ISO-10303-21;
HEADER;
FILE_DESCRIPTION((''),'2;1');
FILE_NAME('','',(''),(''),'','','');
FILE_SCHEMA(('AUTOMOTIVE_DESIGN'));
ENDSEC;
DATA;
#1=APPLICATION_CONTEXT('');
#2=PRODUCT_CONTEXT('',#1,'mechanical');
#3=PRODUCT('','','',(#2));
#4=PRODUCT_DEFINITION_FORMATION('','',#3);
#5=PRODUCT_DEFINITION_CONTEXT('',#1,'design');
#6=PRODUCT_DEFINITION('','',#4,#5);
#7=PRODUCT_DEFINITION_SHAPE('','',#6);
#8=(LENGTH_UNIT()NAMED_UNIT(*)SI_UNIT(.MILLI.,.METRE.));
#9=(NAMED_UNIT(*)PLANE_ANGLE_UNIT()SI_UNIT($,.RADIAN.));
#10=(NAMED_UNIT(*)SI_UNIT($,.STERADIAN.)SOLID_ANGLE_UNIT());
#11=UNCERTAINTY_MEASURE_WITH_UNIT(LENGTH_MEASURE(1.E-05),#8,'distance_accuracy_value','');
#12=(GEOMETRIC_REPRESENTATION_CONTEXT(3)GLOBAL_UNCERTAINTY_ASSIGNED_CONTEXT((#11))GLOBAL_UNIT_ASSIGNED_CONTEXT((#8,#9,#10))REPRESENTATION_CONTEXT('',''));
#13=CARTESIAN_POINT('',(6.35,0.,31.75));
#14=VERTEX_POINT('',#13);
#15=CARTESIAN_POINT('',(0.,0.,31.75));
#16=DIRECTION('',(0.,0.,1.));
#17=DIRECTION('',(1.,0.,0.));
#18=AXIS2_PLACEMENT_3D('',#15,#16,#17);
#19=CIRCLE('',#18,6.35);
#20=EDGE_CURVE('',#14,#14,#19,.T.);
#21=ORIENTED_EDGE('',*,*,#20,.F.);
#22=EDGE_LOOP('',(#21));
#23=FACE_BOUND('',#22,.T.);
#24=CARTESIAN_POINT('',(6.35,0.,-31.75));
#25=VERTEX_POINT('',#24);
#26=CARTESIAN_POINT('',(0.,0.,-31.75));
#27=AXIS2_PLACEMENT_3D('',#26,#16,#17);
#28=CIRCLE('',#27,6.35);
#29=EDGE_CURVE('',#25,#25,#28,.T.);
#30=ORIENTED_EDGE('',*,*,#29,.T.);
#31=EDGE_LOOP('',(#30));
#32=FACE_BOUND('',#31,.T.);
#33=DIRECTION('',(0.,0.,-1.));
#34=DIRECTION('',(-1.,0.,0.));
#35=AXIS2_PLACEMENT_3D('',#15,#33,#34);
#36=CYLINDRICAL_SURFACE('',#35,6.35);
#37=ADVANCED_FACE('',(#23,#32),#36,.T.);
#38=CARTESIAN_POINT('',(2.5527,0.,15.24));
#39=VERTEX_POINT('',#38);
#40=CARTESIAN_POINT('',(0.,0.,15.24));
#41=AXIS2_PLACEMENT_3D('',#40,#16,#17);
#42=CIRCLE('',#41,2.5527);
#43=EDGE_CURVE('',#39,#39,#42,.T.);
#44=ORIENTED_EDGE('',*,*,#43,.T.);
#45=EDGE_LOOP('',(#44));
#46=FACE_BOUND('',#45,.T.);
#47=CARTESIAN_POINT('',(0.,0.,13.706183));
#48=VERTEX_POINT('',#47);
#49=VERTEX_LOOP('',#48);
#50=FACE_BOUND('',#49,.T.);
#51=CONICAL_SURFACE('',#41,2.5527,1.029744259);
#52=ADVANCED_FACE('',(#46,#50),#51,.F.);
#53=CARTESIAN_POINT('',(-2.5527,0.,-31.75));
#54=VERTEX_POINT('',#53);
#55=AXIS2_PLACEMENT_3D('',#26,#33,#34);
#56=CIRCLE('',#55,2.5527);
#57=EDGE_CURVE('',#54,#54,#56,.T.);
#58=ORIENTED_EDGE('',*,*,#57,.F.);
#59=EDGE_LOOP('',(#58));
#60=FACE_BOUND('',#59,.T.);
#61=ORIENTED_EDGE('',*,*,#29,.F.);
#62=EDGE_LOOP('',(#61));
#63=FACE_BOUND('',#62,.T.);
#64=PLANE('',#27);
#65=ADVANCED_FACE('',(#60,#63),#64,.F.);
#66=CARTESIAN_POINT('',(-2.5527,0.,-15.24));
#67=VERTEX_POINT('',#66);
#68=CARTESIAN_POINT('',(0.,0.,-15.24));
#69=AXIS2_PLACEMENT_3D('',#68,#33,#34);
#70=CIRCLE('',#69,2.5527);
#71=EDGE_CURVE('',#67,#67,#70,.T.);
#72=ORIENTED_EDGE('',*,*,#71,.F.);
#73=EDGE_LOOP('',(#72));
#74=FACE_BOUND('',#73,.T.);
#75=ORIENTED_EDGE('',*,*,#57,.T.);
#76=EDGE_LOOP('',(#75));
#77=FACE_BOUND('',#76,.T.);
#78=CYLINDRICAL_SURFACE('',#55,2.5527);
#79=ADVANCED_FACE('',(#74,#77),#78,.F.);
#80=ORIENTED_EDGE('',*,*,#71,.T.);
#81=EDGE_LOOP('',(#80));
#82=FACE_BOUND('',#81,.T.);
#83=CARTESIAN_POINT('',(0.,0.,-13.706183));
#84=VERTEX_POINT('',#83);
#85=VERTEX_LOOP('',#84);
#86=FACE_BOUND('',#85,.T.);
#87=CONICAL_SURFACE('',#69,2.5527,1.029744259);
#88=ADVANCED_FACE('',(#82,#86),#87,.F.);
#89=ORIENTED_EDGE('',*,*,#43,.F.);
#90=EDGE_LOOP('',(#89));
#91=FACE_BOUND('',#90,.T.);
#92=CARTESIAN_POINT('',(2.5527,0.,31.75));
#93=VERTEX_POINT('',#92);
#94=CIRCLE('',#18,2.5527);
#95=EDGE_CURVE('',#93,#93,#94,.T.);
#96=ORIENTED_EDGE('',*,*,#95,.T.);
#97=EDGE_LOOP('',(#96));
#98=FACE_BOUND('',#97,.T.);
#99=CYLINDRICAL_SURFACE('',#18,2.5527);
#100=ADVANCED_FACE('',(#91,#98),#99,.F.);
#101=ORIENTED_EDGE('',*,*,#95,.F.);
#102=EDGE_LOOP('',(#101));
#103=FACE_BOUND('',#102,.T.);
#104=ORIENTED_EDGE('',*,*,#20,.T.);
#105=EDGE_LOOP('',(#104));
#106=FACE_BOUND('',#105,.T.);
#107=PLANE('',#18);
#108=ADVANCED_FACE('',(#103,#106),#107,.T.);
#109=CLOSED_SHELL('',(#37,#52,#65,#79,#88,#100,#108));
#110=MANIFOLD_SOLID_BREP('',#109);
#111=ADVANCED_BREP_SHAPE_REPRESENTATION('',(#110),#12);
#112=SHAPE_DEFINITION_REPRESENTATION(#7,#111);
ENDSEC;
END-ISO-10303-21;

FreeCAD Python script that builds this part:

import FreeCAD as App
import Part
import Sketcher
from FreeCAD import Vector
Q = App.Units.Quantity

doc = App.newDocument("Part")
body = doc.addObject("PartDesign::Body", "Body")

# Sketch on XY plane
sketch1 = body.newObject("Sketcher::SketchObject", "Sketch")
sketch1.AttachmentSupport = (doc.getObject("XY_Plane"), [""])
sketch1.MapMode = "FlatFace"
sketch1.addGeometry(Part.Circle(Vector(0, 0, 0), Vector(0, 0, 1), 6), False)
sketch1.addConstraint([
    Sketcher.Constraint("Coincident", 0, 3, -1, 1),
    Sketcher.Constraint("Diameter", 0, Q("0.5 in")),
])
pad1 = body.newObject("PartDesign::Pad", "Pad")
pad1.Profile = sketch1
pad1.Length = Q("2.5 in")
pad1.Midplane = True

# Sketch on XY plane
sketch2 = body.newObject("Sketcher::SketchObject", "Sketch001")
sketch2.AttachmentSupport = (doc.getObject("XY_Plane"), [""])
sketch2.MapMode = "FlatFace"
sketch2.AttachmentOffset = App.Placement(Vector(0, 0, 1.25 * 25.4), App.Rotation())
sketch2.addGeometry(Part.Circle(Vector(0, 0, 0), Vector(0, 0, 1), 2.6), False)
sketch2.addConstraint([
    Sketcher.Constraint("Coincident", 0, 3, -1, 1),
    Sketcher.Constraint("Diameter", 0, Q("0.201 in")),
])
doc.recompute()
hole = body.newObject("PartDesign::Hole", "Hole")
hole.Profile = sketch2
hole.ThreadType = "None"
hole.Diameter = Q("0.201 in")
hole.DepthType = "Dimension"
hole.Depth = Q("0.65 in")
hole.DrillPoint = "Angled"
hole.DrillPointAngle = 118

# Sketch on XY plane
sketch3 = body.newObject("Sketcher::SketchObject", "Sketch002")
sketch3.AttachmentSupport = (doc.getObject("XY_Plane"), [""])
sketch3.MapMode = "FlatFace"
sketch3.AttachmentOffset = App.Placement(Vector(0, 0, -1.25 * 25.4), App.Rotation())
sketch3.addGeometry(Part.Circle(Vector(0, 0, 0), Vector(0, 0, 1), 2.6), False)
sketch3.addConstraint([
    Sketcher.Constraint("Coincident", 0, 3, -1, 1),
    Sketcher.Constraint("Diameter", 0, Q("0.201 in")),
])
doc.recompute()
hole2 = body.newObject("PartDesign::Hole", "Hole001")
hole2.Profile = sketch3
hole2.ThreadType = "None"
hole2.Diameter = Q("0.201 in")
hole2.DepthType = "Dimension"
hole2.Depth = Q("0.65 in")
hole2.DrillPoint = "Angled"
hole2.DrillPointAngle = 118
hole2.Reversed = True

doc.recompute()
